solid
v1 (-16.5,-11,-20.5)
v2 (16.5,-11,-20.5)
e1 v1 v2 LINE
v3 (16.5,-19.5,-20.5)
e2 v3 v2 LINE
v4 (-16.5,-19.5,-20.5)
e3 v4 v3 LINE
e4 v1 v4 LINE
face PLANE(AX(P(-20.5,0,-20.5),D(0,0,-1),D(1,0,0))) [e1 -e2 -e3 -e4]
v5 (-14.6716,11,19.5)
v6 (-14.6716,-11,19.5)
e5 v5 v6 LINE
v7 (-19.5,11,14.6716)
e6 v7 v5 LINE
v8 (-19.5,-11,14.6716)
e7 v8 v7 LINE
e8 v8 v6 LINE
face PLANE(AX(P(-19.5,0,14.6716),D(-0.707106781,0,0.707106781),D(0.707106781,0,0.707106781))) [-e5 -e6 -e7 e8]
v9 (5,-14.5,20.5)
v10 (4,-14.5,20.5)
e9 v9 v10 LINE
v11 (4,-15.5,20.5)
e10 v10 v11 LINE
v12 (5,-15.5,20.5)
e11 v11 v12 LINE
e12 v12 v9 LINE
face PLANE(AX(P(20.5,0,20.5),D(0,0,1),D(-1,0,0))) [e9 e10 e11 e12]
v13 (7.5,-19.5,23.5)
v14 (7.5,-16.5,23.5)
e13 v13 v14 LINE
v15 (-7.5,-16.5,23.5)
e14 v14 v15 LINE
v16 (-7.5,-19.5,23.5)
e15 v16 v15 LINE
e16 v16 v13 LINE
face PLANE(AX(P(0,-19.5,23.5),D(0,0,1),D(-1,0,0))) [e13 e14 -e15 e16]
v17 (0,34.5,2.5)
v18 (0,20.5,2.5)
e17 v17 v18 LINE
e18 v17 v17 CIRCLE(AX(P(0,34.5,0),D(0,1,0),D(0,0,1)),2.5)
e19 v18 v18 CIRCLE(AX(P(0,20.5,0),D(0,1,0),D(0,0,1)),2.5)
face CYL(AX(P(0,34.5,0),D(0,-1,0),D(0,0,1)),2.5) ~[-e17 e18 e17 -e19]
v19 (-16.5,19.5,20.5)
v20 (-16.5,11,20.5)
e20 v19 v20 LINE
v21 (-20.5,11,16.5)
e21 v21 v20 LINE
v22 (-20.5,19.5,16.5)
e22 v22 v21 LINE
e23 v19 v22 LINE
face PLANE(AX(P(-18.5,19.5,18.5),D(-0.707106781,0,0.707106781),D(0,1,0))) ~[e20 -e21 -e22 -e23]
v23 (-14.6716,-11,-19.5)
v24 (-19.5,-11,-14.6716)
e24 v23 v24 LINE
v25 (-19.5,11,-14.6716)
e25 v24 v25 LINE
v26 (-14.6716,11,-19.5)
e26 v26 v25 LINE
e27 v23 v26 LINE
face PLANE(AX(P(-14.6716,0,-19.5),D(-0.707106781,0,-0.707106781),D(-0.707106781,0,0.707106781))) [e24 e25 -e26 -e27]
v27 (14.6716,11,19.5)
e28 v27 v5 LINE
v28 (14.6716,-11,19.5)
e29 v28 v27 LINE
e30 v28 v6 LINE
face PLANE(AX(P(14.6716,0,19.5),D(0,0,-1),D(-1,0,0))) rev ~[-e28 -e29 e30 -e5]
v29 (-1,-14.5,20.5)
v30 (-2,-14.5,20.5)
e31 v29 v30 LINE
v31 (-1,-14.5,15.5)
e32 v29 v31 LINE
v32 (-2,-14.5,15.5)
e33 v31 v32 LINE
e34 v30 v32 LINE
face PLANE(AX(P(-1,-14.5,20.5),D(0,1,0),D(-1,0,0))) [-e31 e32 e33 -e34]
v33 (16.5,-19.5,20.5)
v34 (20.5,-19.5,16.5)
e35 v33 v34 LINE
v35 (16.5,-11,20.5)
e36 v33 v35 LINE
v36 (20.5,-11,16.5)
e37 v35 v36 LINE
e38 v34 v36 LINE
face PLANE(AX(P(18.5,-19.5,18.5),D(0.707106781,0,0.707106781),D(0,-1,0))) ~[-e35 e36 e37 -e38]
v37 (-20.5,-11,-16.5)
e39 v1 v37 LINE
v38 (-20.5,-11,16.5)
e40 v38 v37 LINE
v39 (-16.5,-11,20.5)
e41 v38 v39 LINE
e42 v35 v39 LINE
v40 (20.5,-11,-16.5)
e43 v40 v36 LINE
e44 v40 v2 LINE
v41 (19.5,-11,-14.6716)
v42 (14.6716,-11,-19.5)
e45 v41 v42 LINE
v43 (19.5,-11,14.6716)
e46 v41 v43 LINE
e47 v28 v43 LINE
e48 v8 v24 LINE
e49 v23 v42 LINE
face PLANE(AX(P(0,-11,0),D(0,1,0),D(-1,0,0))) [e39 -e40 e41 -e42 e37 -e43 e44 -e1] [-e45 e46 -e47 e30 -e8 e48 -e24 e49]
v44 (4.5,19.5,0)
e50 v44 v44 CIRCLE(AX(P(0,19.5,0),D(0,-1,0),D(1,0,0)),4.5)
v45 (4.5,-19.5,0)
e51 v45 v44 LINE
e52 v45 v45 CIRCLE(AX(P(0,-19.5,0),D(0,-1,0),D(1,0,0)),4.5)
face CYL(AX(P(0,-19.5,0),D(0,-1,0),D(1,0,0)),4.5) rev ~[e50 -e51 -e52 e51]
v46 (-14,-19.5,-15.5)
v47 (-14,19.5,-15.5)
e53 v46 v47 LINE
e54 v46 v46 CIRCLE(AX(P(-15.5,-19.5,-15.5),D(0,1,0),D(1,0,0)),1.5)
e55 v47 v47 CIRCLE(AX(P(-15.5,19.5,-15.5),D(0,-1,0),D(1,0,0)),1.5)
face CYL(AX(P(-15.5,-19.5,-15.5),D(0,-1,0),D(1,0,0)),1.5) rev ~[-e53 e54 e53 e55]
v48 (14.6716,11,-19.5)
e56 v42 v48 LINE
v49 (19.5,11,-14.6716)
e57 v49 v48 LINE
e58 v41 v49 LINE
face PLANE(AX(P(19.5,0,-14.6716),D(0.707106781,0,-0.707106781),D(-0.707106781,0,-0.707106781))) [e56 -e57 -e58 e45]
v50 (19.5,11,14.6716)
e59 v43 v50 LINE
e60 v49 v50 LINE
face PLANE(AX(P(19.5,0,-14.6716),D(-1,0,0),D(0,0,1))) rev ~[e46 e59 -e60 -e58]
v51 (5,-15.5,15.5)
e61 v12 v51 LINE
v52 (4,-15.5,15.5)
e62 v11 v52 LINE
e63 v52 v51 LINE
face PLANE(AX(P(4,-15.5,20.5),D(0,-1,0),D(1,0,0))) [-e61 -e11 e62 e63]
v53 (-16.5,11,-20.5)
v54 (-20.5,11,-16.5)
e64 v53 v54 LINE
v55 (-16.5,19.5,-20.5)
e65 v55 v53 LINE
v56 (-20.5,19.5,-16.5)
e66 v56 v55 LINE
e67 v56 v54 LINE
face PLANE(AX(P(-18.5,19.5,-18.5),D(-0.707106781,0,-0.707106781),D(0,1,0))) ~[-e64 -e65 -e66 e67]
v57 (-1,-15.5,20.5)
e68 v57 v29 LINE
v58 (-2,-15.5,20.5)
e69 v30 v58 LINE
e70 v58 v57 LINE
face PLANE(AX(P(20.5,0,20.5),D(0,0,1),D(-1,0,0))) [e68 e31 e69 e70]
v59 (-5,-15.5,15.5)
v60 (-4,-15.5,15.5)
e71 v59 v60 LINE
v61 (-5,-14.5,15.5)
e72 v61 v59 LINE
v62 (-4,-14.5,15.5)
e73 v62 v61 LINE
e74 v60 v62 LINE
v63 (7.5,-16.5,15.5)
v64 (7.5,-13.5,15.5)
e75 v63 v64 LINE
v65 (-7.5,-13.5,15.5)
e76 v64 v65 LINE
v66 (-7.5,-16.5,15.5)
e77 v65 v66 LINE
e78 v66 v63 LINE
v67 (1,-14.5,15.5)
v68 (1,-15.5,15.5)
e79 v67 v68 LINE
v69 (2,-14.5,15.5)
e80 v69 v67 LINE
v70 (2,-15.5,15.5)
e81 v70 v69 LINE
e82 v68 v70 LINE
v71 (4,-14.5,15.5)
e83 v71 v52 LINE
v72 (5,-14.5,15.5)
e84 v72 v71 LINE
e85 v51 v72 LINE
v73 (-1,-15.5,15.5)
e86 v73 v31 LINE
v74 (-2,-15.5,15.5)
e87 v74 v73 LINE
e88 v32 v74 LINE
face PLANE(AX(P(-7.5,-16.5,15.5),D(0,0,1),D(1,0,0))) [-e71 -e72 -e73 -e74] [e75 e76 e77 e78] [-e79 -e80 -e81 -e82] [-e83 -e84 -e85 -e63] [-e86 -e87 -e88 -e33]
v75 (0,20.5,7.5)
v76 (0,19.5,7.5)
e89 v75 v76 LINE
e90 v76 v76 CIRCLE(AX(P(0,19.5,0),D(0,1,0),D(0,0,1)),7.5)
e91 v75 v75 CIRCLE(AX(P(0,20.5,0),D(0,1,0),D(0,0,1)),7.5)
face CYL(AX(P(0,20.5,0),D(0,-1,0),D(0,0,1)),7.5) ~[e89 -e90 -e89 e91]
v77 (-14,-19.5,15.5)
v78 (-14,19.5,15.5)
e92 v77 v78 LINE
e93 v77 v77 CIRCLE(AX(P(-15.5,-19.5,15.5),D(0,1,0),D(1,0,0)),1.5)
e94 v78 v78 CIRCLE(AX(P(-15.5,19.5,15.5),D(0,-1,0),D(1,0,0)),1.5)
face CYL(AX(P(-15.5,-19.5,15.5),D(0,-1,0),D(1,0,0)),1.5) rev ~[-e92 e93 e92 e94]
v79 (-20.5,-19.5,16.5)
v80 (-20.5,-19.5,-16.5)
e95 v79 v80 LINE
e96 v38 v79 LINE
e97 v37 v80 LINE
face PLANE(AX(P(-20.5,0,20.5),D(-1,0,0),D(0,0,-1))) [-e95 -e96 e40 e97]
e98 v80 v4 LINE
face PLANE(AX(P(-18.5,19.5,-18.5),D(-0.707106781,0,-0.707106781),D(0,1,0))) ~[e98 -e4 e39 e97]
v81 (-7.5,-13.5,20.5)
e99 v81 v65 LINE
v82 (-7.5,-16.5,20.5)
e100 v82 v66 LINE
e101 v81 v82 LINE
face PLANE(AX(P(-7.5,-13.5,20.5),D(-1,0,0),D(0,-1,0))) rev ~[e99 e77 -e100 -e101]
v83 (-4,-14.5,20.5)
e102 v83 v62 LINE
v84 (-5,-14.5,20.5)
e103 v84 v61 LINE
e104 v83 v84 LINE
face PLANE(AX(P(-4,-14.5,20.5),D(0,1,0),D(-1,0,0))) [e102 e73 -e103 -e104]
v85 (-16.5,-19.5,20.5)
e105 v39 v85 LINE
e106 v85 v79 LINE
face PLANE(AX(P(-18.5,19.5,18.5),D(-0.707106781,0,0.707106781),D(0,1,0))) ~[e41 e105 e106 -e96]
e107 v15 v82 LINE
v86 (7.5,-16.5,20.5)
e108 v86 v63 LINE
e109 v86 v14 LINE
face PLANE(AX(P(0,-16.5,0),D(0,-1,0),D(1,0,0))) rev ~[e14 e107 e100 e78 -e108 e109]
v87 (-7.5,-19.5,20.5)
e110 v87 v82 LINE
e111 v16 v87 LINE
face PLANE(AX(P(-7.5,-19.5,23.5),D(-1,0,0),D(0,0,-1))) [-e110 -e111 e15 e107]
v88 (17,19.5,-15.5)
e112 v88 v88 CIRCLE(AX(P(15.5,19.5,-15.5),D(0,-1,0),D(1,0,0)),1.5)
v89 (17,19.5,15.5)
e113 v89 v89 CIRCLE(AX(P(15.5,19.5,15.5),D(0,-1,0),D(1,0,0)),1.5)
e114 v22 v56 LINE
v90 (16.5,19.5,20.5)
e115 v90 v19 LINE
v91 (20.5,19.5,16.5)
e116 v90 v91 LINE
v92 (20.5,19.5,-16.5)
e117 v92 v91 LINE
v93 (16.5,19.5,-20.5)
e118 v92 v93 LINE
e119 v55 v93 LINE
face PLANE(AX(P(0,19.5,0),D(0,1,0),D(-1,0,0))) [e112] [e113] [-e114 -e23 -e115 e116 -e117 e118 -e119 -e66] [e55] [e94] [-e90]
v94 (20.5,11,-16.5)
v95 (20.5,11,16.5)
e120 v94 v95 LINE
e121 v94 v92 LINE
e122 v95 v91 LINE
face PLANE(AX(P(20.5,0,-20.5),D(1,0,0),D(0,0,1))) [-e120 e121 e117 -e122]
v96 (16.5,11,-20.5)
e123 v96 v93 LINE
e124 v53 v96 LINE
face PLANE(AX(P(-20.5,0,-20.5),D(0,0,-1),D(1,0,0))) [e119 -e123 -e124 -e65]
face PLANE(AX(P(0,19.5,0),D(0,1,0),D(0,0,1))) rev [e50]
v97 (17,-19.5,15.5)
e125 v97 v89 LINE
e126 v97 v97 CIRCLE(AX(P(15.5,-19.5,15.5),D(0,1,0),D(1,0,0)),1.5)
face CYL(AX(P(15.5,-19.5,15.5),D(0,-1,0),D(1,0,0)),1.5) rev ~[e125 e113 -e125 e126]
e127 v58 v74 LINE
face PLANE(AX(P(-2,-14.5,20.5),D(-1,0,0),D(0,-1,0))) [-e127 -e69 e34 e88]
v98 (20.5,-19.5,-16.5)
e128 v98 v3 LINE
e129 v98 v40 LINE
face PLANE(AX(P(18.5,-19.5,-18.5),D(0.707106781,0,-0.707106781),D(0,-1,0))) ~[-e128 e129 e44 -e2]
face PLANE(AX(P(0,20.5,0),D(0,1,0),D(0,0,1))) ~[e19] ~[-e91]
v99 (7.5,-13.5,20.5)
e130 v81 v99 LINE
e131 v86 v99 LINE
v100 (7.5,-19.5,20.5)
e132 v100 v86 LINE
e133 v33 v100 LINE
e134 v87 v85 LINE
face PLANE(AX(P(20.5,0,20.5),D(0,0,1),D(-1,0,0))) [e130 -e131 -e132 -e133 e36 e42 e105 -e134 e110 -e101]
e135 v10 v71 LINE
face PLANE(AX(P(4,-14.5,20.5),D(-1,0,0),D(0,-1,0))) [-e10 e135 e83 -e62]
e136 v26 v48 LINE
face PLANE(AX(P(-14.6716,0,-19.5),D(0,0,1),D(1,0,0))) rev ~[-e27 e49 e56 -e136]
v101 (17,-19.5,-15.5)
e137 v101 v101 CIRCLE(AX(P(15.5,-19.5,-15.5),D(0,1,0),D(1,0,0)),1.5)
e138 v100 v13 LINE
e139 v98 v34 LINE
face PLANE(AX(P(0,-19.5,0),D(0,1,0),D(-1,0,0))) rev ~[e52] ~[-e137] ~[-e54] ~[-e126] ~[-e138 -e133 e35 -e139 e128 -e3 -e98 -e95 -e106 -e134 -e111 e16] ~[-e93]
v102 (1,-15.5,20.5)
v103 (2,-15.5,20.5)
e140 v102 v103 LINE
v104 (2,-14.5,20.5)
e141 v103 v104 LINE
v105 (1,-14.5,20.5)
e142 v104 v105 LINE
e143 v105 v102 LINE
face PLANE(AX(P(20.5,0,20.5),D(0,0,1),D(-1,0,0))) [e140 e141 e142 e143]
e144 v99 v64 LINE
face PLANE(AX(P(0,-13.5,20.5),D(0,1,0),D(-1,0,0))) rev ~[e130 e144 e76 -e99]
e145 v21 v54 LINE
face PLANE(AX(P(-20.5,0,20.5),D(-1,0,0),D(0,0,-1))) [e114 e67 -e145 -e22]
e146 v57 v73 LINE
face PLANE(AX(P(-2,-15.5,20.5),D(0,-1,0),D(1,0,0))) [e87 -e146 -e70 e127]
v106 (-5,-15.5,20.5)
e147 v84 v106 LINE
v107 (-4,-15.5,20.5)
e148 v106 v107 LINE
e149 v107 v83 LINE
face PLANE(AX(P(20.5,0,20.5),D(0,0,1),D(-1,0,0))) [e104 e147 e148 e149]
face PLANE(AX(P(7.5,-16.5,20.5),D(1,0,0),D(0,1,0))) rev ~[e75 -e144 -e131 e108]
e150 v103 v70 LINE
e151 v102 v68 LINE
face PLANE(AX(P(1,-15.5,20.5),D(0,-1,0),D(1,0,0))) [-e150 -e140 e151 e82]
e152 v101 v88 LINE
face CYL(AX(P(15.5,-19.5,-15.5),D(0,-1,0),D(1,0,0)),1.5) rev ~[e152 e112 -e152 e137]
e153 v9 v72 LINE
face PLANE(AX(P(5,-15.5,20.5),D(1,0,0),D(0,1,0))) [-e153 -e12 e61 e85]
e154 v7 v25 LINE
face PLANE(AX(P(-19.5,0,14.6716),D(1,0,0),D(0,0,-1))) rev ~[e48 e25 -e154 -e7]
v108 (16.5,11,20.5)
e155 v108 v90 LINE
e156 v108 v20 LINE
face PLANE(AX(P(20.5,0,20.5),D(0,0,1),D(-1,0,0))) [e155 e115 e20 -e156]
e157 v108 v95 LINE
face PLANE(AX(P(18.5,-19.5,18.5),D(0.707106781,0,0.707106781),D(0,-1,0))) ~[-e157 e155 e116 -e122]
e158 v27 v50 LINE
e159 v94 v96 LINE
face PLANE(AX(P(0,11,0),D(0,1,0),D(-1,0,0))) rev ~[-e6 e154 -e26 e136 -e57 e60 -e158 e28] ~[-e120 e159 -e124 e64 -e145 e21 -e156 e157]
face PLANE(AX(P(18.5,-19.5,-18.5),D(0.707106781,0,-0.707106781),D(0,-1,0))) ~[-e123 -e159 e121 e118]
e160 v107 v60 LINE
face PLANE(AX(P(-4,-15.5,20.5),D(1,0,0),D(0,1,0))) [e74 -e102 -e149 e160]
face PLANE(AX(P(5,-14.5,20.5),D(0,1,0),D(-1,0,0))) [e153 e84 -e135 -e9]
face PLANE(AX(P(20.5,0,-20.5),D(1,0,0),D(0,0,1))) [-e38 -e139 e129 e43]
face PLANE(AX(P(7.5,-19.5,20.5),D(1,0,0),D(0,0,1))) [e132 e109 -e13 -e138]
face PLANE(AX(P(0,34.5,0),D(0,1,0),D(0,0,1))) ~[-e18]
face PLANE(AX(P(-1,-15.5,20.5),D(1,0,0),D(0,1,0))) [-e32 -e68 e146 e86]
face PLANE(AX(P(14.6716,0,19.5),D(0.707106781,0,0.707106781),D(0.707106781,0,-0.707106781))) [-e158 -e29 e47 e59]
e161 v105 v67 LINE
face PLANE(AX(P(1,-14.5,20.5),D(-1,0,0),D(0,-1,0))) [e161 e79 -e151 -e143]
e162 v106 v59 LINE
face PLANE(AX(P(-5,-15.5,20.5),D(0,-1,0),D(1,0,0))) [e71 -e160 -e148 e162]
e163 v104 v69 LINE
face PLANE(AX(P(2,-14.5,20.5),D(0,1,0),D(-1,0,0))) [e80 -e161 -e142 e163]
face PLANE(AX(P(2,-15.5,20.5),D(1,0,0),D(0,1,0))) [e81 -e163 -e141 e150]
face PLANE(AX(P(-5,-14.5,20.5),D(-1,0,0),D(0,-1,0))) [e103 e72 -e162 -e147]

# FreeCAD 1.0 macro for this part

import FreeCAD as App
import Part
import Sketcher


def edges_at(feature, points):
    """Names of the edges that pass closest to the given points."""
    edges = feature.Shape.Edges
    near = lambda p: min(range(len(edges)), key=lambda i: edges[i].distToShape(Part.Vertex(*p))[0])
    return sorted({f"Edge{near(p) + 1}" for p in points})


def add_polygon(sketch, points):
    """Adds a closed chain of lines whose ends are joined by coincident constraints."""
    first, n = sketch.GeometryCount, len(points)
    for a, b in zip(points, points[1:] + points[:1]):
        sketch.addGeometry(Part.LineSegment(App.Vector(*a, 0), App.Vector(*b, 0)), False)
    for i in range(n):
        sketch.addConstraint(Sketcher.Constraint("Coincident", first + i, 2, first + (i + 1) % n, 1))

doc = App.newDocument("Part")
body = doc.addObject("PartDesign::Body", "Body")

# Sketch on XZ plane
sketch1 = doc.addObject("Sketcher::SketchObject", "Sketch")
body.addObject(sketch1)
sketch1.AttachmentSupport = (doc.XZ_Plane, [""])
sketch1.MapMode = "FlatFace"
add_polygon(sketch1, [(-20, 20), (20, 20), (20, -20), (-20, -20)])  # lines 0-3
sketch1.addConstraint([
    Sketcher.Constraint("Horizontal", 0),
    Sketcher.Constraint("Vertical", 1),
    Sketcher.Constraint("Horizontal", 2),
    Sketcher.Constraint("Vertical", 3),
    Sketcher.Constraint("Symmetric", 0, 2, 2, 2, -1, 1),
    Sketcher.Constraint("Equal", 2, 1),
    Sketcher.Constraint("DistanceX", 0, 1, 0, 2, 41.0),
])
pad1 = doc.addObject("PartDesign::Pad", "Pad")
body.addObject(pad1)
pad1.Profile = sketch1
pad1.Length = 39
pad1.Midplane = True

# Sketch on XZ plane
sketch2 = doc.addObject("Sketcher::SketchObject", "Sketch001")
body.addObject(sketch2)
sketch2.AttachmentSupport = (doc.XZ_Plane, [""])
sketch2.MapMode = "FlatFace"
sketch2.AttachmentOffset = App.Placement(App.Vector(0, 0, 19.5), App.Rotation())
add_polygon(sketch2, [(-7.5, 23.5), (-7.5, 20.5), (7.5, 20.5), (7.5, 23.5)])  # lines 0-3
sketch2.addConstraint([
    Sketcher.Constraint("Vertical", 0),
    Sketcher.Constraint("Horizontal", 1),
    Sketcher.Constraint("Vertical", 2),
    Sketcher.Constraint("Horizontal", 3),
    Sketcher.Constraint("DistanceX", 1, 1, 1, 2, 15.0),
    Sketcher.Constraint("DistanceY", 0, 2, 0, 1, 3.0),
    Sketcher.Constraint("DistanceX", 0, 2, -1, 1, 7.5),
    Sketcher.Constraint("DistanceY", -1, 1, 0, 2, 20.5),
])
pad2 = doc.addObject("PartDesign::Pad", "Pad001")
body.addObject(pad2)
pad2.Profile = sketch2
pad2.Length = 3
pad2.Reversed = True

# Sketch on XZ plane
sketch3 = doc.addObject("Sketcher::SketchObject", "Sketch002")
body.addObject(sketch3)
sketch3.AttachmentSupport = (doc.XZ_Plane, [""])
sketch3.MapMode = "FlatFace"
sketch3.AttachmentOffset = App.Placement(App.Vector(0, 0, 19.5), App.Rotation())
sketch3.addGeometry([
    Part.Circle(App.Vector(-15.5, -15.5, 0), App.Vector(0, 0, 1), 1.5),  # 0
    Part.Circle(App.Vector(15.5, -15.5, 0), App.Vector(0, 0, 1), 1.5),  # 1
    Part.Circle(App.Vector(-15.5, 15.5, 0), App.Vector(0, 0, 1), 1.5),  # 2
    Part.Circle(App.Vector(15.5, 15.5, 0), App.Vector(0, 0, 1), 1.5),  # 3
    Part.Circle(App.Vector(0, 0, 0), App.Vector(0, 0, 1), 4.5),  # 4
], False)
sketch3.addConstraint([
    Sketcher.Constraint("Coincident", 4, 3, -1, 1),
    Sketcher.Constraint("Equal", 0, 1),
    Sketcher.Constraint("Equal", 1, 2),
    Sketcher.Constraint("Equal", 2, 3),
    Sketcher.Constraint("Symmetric", 1, 3, 2, 3, -1, 1),
    Sketcher.Constraint("Symmetric", 0, 3, 3, 3, -1, 1),
    Sketcher.Constraint("Symmetric", 0, 3, 1, 3, -2),
    Sketcher.Constraint("Diameter", 0, 3.0),
    Sketcher.Constraint("Diameter", 4, 9.0),
    Sketcher.Constraint("DistanceX", 0, 3, 1, 3, 31.0),
    Sketcher.Constraint("DistanceY", 0, 3, 2, 3, 31.0),
])
pocket1 = doc.addObject("PartDesign::Pocket", "Pocket")
body.addObject(pocket1)
pocket1.Profile = sketch3
pocket1.Type = "ThroughAll"
pocket1.Midplane = True
doc.recompute()

chamfer = doc.addObject("PartDesign::Chamfer", "Chamfer")
body.addObject(chamfer)
chamfer.Base = (pocket1, edges_at(pocket1, [
    (20.5, 0, 20.5),
    (-20.5, 0, 20.5),
    (20.5, 0, -20.5),
    (-20.5, 0, -20.5),
]))
chamfer.Size = 4

# Sketch on XZ plane
sketch4 = doc.addObject("Sketcher::SketchObject", "Sketch003")
body.addObject(sketch4)
sketch4.AttachmentSupport = (doc.XZ_Plane, [""])
sketch4.MapMode = "FlatFace"
add_polygon(sketch4, [(26, -26), (-26, -26), (-26, 26), (26, 26)])  # lines 0-3
add_polygon(sketch4, [(-15, 20), (-20, 15), (-20, -15), (-15, -20), (15, -20), (20, -15), (20, 15), (15, 20)])  # lines 4-11
sketch4.addConstraint([
    Sketcher.Constraint("Horizontal", 0),
    Sketcher.Constraint("Vertical", 1),
    Sketcher.Constraint("Horizontal", 2),
    Sketcher.Constraint("Vertical", 3),
    Sketcher.Constraint("Vertical", 5),
    Sketcher.Constraint("Horizontal", 7),
    Sketcher.Constraint("Vertical", 9),
    Sketcher.Constraint("Horizontal", 11),
    Sketcher.Constraint("Symmetric", 0, 2, 2, 2, -1, 1),
    Sketcher.Constraint("Symmetric", 4, 2, 8, 2, -1, 1),
    Sketcher.Constraint("Symmetric", 6, 2, 10, 2, -1, 1),
    Sketcher.Constraint("Perpendicular", 4, 6),
    Sketcher.Constraint("Perpendicular", 6, 8),
    Sketcher.Constraint("Perpendicular", 8, 10),
    Sketcher.Constraint("Horizontal", 5, 2, 8, 2),
    Sketcher.Constraint("Vertical", 7, 2, 10, 2),
    Sketcher.Constraint("Equal", 2, 1),
    Sketcher.Constraint("Equal", 11, 5),
    Sketcher.Constraint("DistanceX", 0, 2, 0, 1, 51.0),
    Sketcher.Constraint("DistanceX", 1, 2, 4, 2, 6.0),
    Sketcher.Constraint("DistanceX", 7, 1, 7, 2, 29.3432),
])
pocket2 = doc.addObject("PartDesign::Pocket", "Pocket001")
body.addObject(pocket2)
pocket2.Profile = sketch4
pocket2.Length = 22
pocket2.Midplane = True

# Sketch on XY plane
sketch5 = doc.addObject("Sketcher::SketchObject", "Sketch004")
body.addObject(sketch5)
sketch5.AttachmentSupport = (doc.XY_Plane, [""])
sketch5.MapMode = "FlatFace"
sketch5.AttachmentOffset = App.Placement(App.Vector(0, 0, 20.5), App.Rotation())
add_polygon(sketch5, [(-7.5, -13.5), (-7.5, -16.5), (7.5, -16.5), (7.5, -13.5)])  # lines 0-3
add_polygon(sketch5, [(-4, -15.5), (-5, -15.5), (-5, -14.5), (-4, -14.5)])  # lines 4-7
add_polygon(sketch5, [(-1, -15.5), (-2, -15.5), (-2, -14.5), (-1, -14.5)])  # lines 8-11
add_polygon(sketch5, [(4, -15.5), (4, -14.5), (5, -14.5), (5, -15.5)])  # lines 12-15
add_polygon(sketch5, [(2, -15.5), (1, -15.5), (1, -14.5), (2, -14.5)])  # lines 16-19
sketch5.addConstraint([
    Sketcher.Constraint("Vertical", 0),
    Sketcher.Constraint("Horizontal", 1),
    Sketcher.Constraint("Vertical", 2),
    Sketcher.Constraint("Horizontal", 3),
    Sketcher.Constraint("Horizontal", 4),
    Sketcher.Constraint("Vertical", 5),
    Sketcher.Constraint("Horizontal", 6),
    Sketcher.Constraint("Vertical", 7),
    Sketcher.Constraint("Horizontal", 8),
    Sketcher.Constraint("Vertical", 9),
    Sketcher.Constraint("Horizontal", 10),
    Sketcher.Constraint("Vertical", 11),
    Sketcher.Constraint("Vertical", 12),
    Sketcher.Constraint("Horizontal", 13),
    Sketcher.Constraint("Vertical", 14),
    Sketcher.Constraint("Horizontal", 15),
    Sketcher.Constraint("Horizontal", 16),
    Sketcher.Constraint("Vertical", 17),
    Sketcher.Constraint("Horizontal", 18),
    Sketcher.Constraint("Vertical", 19),
    Sketcher.Constraint("Symmetric", 6, 2, 12, 2, -2),
    Sketcher.Constraint("Symmetric", 4, 2, 14, 2, -2),
    Sketcher.Constraint("Symmetric", 11, 2, 16, 2, -2),
    Sketcher.Constraint("Symmetric", 9, 2, 18, 2, -2),
    Sketcher.Constraint("Horizontal", 7, 2, 8, 2),
    Sketcher.Constraint("Horizontal", 6, 2, 9, 2),
    Sketcher.Constraint("Equal", 6, 8),
    Sketcher.Constraint("Equal", 18, 5),
    Sketcher.Constraint("DistanceX", 4, 2, 4, 1, 1.0),
    Sketcher.Constraint("DistanceY", 0, 2, 0, 1, 3.0),
    Sketcher.Constraint("DistanceX", 10, 2, -1, 1, 1.0),
    Sketcher.Constraint("DistanceY", 0, 2, 4, 2, 1.0),
    Sketcher.Constraint("DistanceX", 4, 2, 8, 2, 3.0),
    Sketcher.Constraint("DistanceX", 1, 1, 1, 2, 15.0),
    Sketcher.Constraint("DistanceX", 0, 2, -1, 1, 7.5),
    Sketcher.Constraint("DistanceY", 0, 2, -1, 1, 16.5),
])
pocket3 = doc.addObject("PartDesign::Pocket", "Pocket002")
body.addObject(pocket3)
pocket3.Profile = sketch5
pocket3.Length = 5

# Sketch on YZ plane
sketch6 = doc.addObject("Sketcher::SketchObject", "Sketch005")
body.addObject(sketch6)
sketch6.AttachmentSupport = (doc.YZ_Plane, [""])
sketch6.MapMode = "FlatFace"
add_polygon(sketch6, [(19.5, 0), (34.5, 0), (34.5, 2.5), (20.5, 2.5), (20.5, 7.5), (19.5, 7.5)])  # lines 0-5
sketch6.addConstraint([
    Sketcher.Constraint("Horizontal", 0),
    Sketcher.Constraint("Vertical", 1),
    Sketcher.Constraint("Horizontal", 2),
    Sketcher.Constraint("Vertical", 3),
    Sketcher.Constraint("Horizontal", 4),
    Sketcher.Constraint("Vertical", 5),
    Sketcher.Constraint("PointOnObject", 0, 2, -1),
    Sketcher.Constraint("DistanceX", 0, 1, 0, 2, 15.0),
    Sketcher.Constraint("DistanceX", 4, 2, 4, 1, 1.0),
    Sketcher.Constraint("DistanceY", 3, 1, 3, 2, 5.0),
    Sketcher.Constraint("DistanceY", 1, 1, 1, 2, 2.5),
    Sketcher.Constraint("DistanceX", -1, 1, 0, 2, 34.5),
])
revolution = doc.addObject("PartDesign::Revolution", "Revolution")
body.addObject(revolution)
revolution.Profile = sketch6
revolution.ReferenceAxis = (sketch6, ["H_Axis"])
revolution.Angle = 360

doc.recompute()
